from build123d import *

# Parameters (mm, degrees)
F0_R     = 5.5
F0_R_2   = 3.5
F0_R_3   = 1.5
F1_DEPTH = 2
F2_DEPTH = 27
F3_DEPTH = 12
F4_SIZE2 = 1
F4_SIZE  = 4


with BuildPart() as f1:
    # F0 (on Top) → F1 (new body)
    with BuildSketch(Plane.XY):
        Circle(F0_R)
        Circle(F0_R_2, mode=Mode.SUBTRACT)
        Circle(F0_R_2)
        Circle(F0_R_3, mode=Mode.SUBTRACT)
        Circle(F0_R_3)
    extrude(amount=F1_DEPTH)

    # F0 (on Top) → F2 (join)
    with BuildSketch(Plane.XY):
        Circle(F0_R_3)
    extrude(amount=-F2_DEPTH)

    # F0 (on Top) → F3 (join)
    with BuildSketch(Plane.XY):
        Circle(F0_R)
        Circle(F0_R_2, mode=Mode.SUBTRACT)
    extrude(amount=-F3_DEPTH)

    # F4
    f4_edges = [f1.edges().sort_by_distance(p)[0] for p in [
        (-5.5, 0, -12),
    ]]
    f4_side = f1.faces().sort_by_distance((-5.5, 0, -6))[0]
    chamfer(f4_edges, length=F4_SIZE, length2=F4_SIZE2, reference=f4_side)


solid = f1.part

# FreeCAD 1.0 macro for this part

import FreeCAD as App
import Part
import Sketcher
Q = App.Units.Quantity


def edges_at(feature, points):
    """Names of the edges that pass closest to the given points."""
    edges = feature.Shape.Edges
    near = lambda p: min(range(len(edges)), key=lambda i: edges[i].distToShape(Part.Vertex(*p))[0])
    return sorted({f"Edge{near(p) + 1}" for p in points})

doc = App.newDocument("Part")
body = doc.addObject("PartDesign::Body", "Body")

# Sketch on XY plane
sketch1 = body.newObject("Sketcher::SketchObject", "Sketch")
sketch1.AttachmentSupport = (doc.getObject("XY_Plane"), [""])
sketch1.MapMode = "FlatFace"
sketch1.addGeometry(Part.Circle(App.Vector(0, 0, 0), App.Vector(0, 0, 1), 5.5), False)
sketch1.addConstraint([
    Sketcher.Constraint("Coincident", 0, 3, -1, 1),
    Sketcher.Constraint("Diameter", 0, Q("11 mm")),
])
pad1 = body.newObject("PartDesign::Pad", "Pad")
pad1.Profile = sketch1
pad1.Length = 2

# Sketch on XY plane
sketch2 = body.newObject("Sketcher::SketchObject", "Sketch001")
sketch2.AttachmentSupport = (doc.getObject("XY_Plane"), [""])
sketch2.MapMode = "FlatFace"
sketch2.addGeometry(Part.Circle(App.Vector(0, 0, 0), App.Vector(0, 0, 1), 1.5), False)
sketch2.addConstraint([
    Sketcher.Constraint("Coincident", 0, 3, -1, 1),
    Sketcher.Constraint("Diameter", 0, Q("3 mm")),
])
pad2 = body.newObject("PartDesign::Pad", "Pad001")
pad2.Profile = sketch2
pad2.Length = 27
pad2.Reversed = True

# Sketch on XY plane
sketch3 = body.newObject("Sketcher::SketchObject", "Sketch002")
sketch3.AttachmentSupport = (doc.getObject("XY_Plane"), [""])
sketch3.MapMode = "FlatFace"
sketch3.addGeometry([
    Part.Circle(App.Vector(0, 0, 0), App.Vector(0, 0, 1), 5.5),
    Part.Circle(App.Vector(0, 0, 0), App.Vector(0, 0, 1), 3.5),
], False)
sketch3.addConstraint([
    Sketcher.Constraint("Coincident", 0, 3, -1, 1),
    Sketcher.Constraint("Coincident", 1, 3, -1, 1),
    Sketcher.Constraint("Diameter", 0, Q("11 mm")),
    Sketcher.Constraint("Diameter", 1, Q("7 mm")),
])
pad3 = body.newObject("PartDesign::Pad", "Pad002")
pad3.Profile = sketch3
pad3.Length = 12
pad3.Reversed = True
doc.recompute()

chamfer = body.newObject("PartDesign::Chamfer", "Chamfer")
chamfer.Base = (pad3, edges_at(pad3, [(-5.5, 0, -12)]))
chamfer.ChamferType = "Two distances"
chamfer.Size = 4
chamfer.Size2 = 1
chamfer.FlipDirection = True

doc.recompute()
